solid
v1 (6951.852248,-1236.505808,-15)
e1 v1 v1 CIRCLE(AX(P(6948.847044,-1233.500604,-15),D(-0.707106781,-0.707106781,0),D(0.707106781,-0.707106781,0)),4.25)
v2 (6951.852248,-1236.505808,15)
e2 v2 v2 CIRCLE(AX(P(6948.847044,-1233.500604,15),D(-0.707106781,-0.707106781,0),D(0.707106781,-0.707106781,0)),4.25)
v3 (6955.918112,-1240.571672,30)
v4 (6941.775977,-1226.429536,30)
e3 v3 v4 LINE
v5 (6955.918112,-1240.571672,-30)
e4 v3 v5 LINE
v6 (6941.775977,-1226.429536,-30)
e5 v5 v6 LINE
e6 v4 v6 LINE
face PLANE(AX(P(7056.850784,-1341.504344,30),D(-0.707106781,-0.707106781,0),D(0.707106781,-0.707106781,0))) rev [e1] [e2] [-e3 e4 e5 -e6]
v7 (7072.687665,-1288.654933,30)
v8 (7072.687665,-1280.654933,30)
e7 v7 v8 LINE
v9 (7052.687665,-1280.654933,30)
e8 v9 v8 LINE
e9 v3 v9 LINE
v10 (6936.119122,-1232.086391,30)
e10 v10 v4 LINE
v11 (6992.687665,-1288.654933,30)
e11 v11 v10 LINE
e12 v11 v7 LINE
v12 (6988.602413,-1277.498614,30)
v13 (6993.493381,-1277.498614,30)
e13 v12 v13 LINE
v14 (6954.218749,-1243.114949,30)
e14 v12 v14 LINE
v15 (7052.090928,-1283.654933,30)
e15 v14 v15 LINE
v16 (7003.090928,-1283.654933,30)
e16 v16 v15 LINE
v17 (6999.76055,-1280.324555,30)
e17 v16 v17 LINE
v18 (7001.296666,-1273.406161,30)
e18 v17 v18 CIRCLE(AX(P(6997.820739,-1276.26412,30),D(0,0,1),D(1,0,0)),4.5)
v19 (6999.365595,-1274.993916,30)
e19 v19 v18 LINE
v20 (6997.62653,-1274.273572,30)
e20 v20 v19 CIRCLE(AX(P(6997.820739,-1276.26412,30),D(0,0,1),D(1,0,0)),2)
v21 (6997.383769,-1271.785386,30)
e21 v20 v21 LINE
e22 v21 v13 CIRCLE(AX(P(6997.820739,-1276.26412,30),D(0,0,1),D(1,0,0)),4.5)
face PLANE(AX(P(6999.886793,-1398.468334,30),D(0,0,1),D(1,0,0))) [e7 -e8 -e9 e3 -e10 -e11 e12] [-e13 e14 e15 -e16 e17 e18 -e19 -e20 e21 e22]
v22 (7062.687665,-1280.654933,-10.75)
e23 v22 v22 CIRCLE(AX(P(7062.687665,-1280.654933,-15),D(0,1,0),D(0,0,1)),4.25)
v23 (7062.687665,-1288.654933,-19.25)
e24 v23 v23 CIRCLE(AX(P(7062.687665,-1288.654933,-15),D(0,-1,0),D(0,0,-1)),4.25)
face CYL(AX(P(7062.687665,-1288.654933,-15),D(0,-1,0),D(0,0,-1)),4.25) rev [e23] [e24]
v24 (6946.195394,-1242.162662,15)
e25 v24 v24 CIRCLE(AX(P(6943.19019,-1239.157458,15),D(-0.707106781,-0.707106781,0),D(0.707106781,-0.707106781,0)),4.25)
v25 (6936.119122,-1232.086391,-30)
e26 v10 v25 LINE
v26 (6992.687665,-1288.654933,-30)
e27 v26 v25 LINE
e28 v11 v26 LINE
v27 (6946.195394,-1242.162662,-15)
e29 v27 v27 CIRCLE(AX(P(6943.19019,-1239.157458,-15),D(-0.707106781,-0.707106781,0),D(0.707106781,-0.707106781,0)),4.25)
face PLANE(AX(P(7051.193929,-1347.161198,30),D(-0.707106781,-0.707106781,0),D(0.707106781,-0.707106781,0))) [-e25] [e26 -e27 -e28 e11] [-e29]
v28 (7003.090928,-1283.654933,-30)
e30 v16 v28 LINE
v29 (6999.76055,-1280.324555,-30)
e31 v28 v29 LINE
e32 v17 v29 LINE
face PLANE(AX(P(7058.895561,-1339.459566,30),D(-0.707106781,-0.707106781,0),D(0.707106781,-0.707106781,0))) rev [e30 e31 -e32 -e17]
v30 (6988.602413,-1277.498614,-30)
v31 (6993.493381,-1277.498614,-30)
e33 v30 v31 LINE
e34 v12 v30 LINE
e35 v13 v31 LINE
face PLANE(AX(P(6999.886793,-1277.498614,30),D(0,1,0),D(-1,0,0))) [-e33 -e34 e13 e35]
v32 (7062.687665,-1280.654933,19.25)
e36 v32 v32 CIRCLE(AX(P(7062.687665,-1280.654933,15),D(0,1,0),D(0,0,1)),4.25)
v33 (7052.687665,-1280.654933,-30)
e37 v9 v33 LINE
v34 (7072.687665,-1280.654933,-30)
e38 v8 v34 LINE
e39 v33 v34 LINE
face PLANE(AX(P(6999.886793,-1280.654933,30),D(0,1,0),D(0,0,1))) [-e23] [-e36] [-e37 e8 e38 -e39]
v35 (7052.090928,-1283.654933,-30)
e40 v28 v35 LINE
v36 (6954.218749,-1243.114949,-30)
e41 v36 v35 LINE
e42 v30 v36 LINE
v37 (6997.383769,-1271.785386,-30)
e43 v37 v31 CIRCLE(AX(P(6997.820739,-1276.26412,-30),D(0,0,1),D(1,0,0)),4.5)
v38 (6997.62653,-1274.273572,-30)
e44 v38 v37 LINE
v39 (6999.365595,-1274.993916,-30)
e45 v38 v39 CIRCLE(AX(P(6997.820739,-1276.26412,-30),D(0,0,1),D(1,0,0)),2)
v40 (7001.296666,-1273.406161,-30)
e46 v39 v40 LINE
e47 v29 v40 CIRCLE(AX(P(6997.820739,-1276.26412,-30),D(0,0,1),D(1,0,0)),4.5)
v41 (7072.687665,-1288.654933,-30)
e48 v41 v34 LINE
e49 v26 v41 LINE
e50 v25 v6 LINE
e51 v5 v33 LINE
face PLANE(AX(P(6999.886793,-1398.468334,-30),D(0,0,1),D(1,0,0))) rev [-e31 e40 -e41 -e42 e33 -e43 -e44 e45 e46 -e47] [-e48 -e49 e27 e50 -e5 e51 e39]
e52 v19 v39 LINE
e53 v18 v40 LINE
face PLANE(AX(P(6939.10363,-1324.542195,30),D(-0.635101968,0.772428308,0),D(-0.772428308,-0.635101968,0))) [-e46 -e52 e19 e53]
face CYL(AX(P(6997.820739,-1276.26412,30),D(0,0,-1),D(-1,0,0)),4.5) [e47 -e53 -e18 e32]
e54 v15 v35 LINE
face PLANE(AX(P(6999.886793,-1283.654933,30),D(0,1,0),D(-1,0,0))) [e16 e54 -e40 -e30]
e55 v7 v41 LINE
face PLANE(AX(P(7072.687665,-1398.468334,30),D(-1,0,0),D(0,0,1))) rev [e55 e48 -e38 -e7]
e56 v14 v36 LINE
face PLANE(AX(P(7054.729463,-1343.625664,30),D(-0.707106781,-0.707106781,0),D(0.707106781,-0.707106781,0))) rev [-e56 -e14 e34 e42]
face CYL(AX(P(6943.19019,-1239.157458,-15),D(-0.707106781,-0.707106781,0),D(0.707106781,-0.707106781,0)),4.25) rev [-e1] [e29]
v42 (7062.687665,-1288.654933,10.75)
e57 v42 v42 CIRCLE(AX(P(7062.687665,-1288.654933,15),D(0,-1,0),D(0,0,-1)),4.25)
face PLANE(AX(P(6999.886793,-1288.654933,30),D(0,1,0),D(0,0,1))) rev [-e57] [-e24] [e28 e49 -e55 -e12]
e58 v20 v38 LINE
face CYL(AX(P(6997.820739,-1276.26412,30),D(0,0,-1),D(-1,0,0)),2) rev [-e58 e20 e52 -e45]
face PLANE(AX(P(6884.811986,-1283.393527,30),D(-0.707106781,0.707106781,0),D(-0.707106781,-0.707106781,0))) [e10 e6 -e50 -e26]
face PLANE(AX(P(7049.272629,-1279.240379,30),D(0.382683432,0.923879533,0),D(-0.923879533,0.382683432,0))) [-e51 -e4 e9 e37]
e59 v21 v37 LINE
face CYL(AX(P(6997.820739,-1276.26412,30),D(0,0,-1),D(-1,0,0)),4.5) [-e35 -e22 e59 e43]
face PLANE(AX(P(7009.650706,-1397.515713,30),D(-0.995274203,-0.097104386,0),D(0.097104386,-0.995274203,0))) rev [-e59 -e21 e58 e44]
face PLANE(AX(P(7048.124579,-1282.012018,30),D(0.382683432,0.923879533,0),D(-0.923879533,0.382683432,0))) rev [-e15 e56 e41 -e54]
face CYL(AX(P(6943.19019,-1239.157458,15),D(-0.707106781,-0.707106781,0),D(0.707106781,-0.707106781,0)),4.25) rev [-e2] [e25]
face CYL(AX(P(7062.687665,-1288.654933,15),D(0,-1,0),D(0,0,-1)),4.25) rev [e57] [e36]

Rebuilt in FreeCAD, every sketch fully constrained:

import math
import FreeCAD as App
import Part
import Sketcher
Q = App.Units.Quantity

doc = App.newDocument("Part")
body = doc.addObject("PartDesign::Body", "Body")

sketch1 = body.newObject("Sketcher::SketchObject", "Sketch")
sketch1.AttachmentSupport = (doc.getObject("XY_Plane"), [""])
sketch1.MapMode = "FlatFace"
sketch1.addGeometry([
    Part.LineSegment(App.Vector(6936.1, -1232.1, 0), App.Vector(6992.7, -1288.7, 0)),
    Part.LineSegment(App.Vector(6992.7, -1288.7, 0), App.Vector(7072.7, -1288.7, 0)),
    Part.LineSegment(App.Vector(7072.7, -1288.7, 0), App.Vector(7072.7, -1280.7, 0)),
    Part.LineSegment(App.Vector(7072.7, -1280.7, 0), App.Vector(7052.7, -1280.7, 0)),
    Part.LineSegment(App.Vector(7052.7, -1280.7, 0), App.Vector(6955.9, -1240.6, 0)),
    Part.LineSegment(App.Vector(6955.9, -1240.6, 0), App.Vector(6941.8, -1226.4, 0)),
    Part.LineSegment(App.Vector(6941.8, -1226.4, 0), App.Vector(6936.1, -1232.1, 0)),
    Part.LineSegment(App.Vector(7052.1, -1283.7, 0), App.Vector(7003.1, -1283.7, 0)),
    Part.LineSegment(App.Vector(7003.1, -1283.7, 0), App.Vector(6999.8, -1280.3, 0)),
    Part.ArcOfCircle(Part.Circle(App.Vector(6997.8, -1276.3, 0), App.Vector(0, 0, 1), 4.5), math.radians(-64), math.radians(39)),
    Part.LineSegment(App.Vector(7001.3, -1273.4, 0), App.Vector(6999.4, -1275, 0)),
    Part.ArcOfCircle(Part.Circle(App.Vector(6997.8, -1276.3, 0), App.Vector(0, 0, 1), 2), math.radians(96), math.radians(399)),
    Part.LineSegment(App.Vector(6997.6, -1274.3, 0), App.Vector(6997.4, -1271.8, 0)),
    Part.ArcOfCircle(Part.Circle(App.Vector(6997.8, -1276.3, 0), App.Vector(0, 0, 1), 4.5), math.radians(96), math.radians(196)),
    Part.LineSegment(App.Vector(6993.5, -1277.5, 0), App.Vector(6988.6, -1277.5, 0)),
    Part.LineSegment(App.Vector(6988.6, -1277.5, 0), App.Vector(6954.2, -1243.1, 0)),
    Part.LineSegment(App.Vector(6954.2, -1243.1, 0), App.Vector(7052.1, -1283.7, 0)),
], False)
sketch1.addConstraint([
    Sketcher.Constraint("Coincident", 0, 2, 1, 1),
    Sketcher.Constraint("Coincident", 1, 2, 2, 1),
    Sketcher.Constraint("Coincident", 2, 2, 3, 1),
    Sketcher.Constraint("Coincident", 3, 2, 4, 1),
    Sketcher.Constraint("Coincident", 4, 2, 5, 1),
    Sketcher.Constraint("Coincident", 5, 2, 6, 1),
    Sketcher.Constraint("Coincident", 6, 2, 0, 1),
    Sketcher.Constraint("Coincident", 7, 2, 8, 1),
    Sketcher.Constraint("Coincident", 8, 2, 9, 1),
    Sketcher.Constraint("Coincident", 9, 2, 10, 1),
    Sketcher.Constraint("Coincident", 10, 2, 11, 2),
    Sketcher.Constraint("Coincident", 11, 1, 12, 1),
    Sketcher.Constraint("Coincident", 12, 2, 13, 1),
    Sketcher.Constraint("Coincident", 13, 2, 14, 1),
    Sketcher.Constraint("Coincident", 14, 2, 15, 1),
    Sketcher.Constraint("Coincident", 15, 2, 16, 1),
    Sketcher.Constraint("Coincident", 16, 2, 7, 1),
    Sketcher.Constraint("Horizontal", 1),
    Sketcher.Constraint("Vertical", 2),
    Sketcher.Constraint("Horizontal", 3),
    Sketcher.Constraint("Horizontal", 7),
    Sketcher.Constraint("Horizontal", 14),
    Sketcher.Constraint("Coincident", 11, 3, 9, 3),
    Sketcher.Constraint("Coincident", 13, 3, 9, 3),
    Sketcher.Constraint("Equal", 9, 13),
    Sketcher.Constraint("Parallel", 0, 5),
    Sketcher.Constraint("Perpendicular", 5, 6),
    Sketcher.Constraint("Perpendicular", 6, 8),
    Sketcher.Constraint("Parallel", 8, 15),
    Sketcher.Constraint("Parallel", 4, 16),
    Sketcher.Constraint("Radius", 11, Q("2 mm")),
    Sketcher.Constraint("Radius", 9, Q("4.5 mm")),
    Sketcher.Constraint("DistanceX", 1, 1, 1, 2, Q("80 mm")),
    Sketcher.Constraint("DistanceX", 3, 2, 3, 1, Q("20 mm")),
    Sketcher.Constraint("DistanceX", 7, 2, 7, 1, Q("49 mm")),
    Sketcher.Constraint("DistanceY", 2, 1, 2, 2, Q("8 mm")),
    Sketcher.Constraint("Angle", 0, Q("-45 deg")),
    Sketcher.Constraint("Distance", 0, Q("80 mm")),
    Sketcher.Constraint("Distance", 5, Q("20 mm")),
    Sketcher.Constraint("Distance", 6, Q("8 mm")),
    Sketcher.Constraint("DistanceY", 0, 2, 7, 2, Q("5 mm")),
    Sketcher.Constraint("DistanceX", 14, 2, 14, 1, Q("4.890968 mm")),
    Sketcher.Constraint("DistanceX", -1, 1, 9, 3, Q("6997.820739 mm")),
    Sketcher.Constraint("DistanceY", 9, 3, -1, 1, Q("1276.26412 mm")),
    Sketcher.Constraint("DistanceY", 6, 2, -1, 1, Q("1232.086391 mm")),
    Sketcher.Constraint("DistanceX", -1, 1, 8, 2, Q("6999.76055 mm")),
    Sketcher.Constraint("DistanceY", 9, 2, -1, 1, Q("1273.406161 mm")),
    Sketcher.Constraint("DistanceX", -1, 1, 11, 1, Q("6997.62653 mm")),
    Sketcher.Constraint("DistanceX", -1, 1, 12, 2, Q("6997.383769 mm")),
    Sketcher.Constraint("DistanceX", -1, 1, 13, 2, Q("6993.493381 mm")),
    Sketcher.Constraint("DistanceX", 10, 2, 9, 2, Q("1.931071 mm")),
    Sketcher.Constraint("DistanceX", -1, 1, 0, 2, Q("6992.687665 mm")),
])
pad1 = body.newObject("PartDesign::Pad", "Pad")
pad1.Profile = sketch1
pad1.Length = 60
pad1.Midplane = True

sketch2 = body.newObject("Sketcher::SketchObject", "Sketch001")
sketch2.Placement = App.Placement(App.Vector(2852.016366, 2852.016366, 0), App.Rotation(App.Vector(0.707106781, -0.707106781, 0), App.Vector(0, 0, 0.999999999), App.Vector(-0.707106781, -0.707106781, 0), "ZXY"))
sketch2.addGeometry([
    Part.Circle(App.Vector(5785.8, -15, 0), App.Vector(0, 0, 1), 4.2),
    Part.Circle(App.Vector(5785.8, 15, 0), App.Vector(0, 0, 1), 4.2),
], False)
sketch2.addConstraint([
    Sketcher.Constraint("Equal", 0, 1),
    Sketcher.Constraint("Symmetric", 0, 3, 1, 3, -1),
    Sketcher.Constraint("Diameter", 0, Q("8.5 mm")),
    Sketcher.Constraint("DistanceY", 0, 3, -1, 1, Q("15 mm")),
    Sketcher.Constraint("DistanceX", -1, 1, 0, 3, Q("5785.793505 mm")),
])
doc.recompute()
hole = body.newObject("PartDesign::Hole", "Hole")
hole.Profile = sketch2
hole.ThreadType = "None"
hole.Diameter = 8.5
hole.DepthType = "ThroughAll"

sketch3 = body.newObject("Sketcher::SketchObject", "Sketch002")
sketch3.AttachmentSupport = (doc.getObject("XZ_Plane"), [""])
sketch3.MapMode = "FlatFace"
sketch3.AttachmentOffset = App.Placement(App.Vector(0, 0, 1288.654933), App.Rotation())
sketch3.addGeometry([
    Part.Circle(App.Vector(7062.7, 15, 0), App.Vector(0, 0, 1), 4.2),
    Part.Circle(App.Vector(7062.7, -15, 0), App.Vector(0, 0, 1), 4.2),
], False)
sketch3.addConstraint([
    Sketcher.Constraint("Equal", 0, 1),
    Sketcher.Constraint("Symmetric", 0, 3, 1, 3, -1),
    Sketcher.Constraint("Diameter", 0, Q("8.5 mm")),
    Sketcher.Constraint("DistanceY", -1, 1, 0, 3, Q("15 mm")),
    Sketcher.Constraint("DistanceX", -1, 1, 0, 3, Q("7062.687665 mm")),
])
doc.recompute()
hole2 = body.newObject("PartDesign::Hole", "Hole001")
hole2.Profile = sketch3
hole2.ThreadType = "None"
hole2.Diameter = 8.5
hole2.DepthType = "ThroughAll"

doc.recompute()
